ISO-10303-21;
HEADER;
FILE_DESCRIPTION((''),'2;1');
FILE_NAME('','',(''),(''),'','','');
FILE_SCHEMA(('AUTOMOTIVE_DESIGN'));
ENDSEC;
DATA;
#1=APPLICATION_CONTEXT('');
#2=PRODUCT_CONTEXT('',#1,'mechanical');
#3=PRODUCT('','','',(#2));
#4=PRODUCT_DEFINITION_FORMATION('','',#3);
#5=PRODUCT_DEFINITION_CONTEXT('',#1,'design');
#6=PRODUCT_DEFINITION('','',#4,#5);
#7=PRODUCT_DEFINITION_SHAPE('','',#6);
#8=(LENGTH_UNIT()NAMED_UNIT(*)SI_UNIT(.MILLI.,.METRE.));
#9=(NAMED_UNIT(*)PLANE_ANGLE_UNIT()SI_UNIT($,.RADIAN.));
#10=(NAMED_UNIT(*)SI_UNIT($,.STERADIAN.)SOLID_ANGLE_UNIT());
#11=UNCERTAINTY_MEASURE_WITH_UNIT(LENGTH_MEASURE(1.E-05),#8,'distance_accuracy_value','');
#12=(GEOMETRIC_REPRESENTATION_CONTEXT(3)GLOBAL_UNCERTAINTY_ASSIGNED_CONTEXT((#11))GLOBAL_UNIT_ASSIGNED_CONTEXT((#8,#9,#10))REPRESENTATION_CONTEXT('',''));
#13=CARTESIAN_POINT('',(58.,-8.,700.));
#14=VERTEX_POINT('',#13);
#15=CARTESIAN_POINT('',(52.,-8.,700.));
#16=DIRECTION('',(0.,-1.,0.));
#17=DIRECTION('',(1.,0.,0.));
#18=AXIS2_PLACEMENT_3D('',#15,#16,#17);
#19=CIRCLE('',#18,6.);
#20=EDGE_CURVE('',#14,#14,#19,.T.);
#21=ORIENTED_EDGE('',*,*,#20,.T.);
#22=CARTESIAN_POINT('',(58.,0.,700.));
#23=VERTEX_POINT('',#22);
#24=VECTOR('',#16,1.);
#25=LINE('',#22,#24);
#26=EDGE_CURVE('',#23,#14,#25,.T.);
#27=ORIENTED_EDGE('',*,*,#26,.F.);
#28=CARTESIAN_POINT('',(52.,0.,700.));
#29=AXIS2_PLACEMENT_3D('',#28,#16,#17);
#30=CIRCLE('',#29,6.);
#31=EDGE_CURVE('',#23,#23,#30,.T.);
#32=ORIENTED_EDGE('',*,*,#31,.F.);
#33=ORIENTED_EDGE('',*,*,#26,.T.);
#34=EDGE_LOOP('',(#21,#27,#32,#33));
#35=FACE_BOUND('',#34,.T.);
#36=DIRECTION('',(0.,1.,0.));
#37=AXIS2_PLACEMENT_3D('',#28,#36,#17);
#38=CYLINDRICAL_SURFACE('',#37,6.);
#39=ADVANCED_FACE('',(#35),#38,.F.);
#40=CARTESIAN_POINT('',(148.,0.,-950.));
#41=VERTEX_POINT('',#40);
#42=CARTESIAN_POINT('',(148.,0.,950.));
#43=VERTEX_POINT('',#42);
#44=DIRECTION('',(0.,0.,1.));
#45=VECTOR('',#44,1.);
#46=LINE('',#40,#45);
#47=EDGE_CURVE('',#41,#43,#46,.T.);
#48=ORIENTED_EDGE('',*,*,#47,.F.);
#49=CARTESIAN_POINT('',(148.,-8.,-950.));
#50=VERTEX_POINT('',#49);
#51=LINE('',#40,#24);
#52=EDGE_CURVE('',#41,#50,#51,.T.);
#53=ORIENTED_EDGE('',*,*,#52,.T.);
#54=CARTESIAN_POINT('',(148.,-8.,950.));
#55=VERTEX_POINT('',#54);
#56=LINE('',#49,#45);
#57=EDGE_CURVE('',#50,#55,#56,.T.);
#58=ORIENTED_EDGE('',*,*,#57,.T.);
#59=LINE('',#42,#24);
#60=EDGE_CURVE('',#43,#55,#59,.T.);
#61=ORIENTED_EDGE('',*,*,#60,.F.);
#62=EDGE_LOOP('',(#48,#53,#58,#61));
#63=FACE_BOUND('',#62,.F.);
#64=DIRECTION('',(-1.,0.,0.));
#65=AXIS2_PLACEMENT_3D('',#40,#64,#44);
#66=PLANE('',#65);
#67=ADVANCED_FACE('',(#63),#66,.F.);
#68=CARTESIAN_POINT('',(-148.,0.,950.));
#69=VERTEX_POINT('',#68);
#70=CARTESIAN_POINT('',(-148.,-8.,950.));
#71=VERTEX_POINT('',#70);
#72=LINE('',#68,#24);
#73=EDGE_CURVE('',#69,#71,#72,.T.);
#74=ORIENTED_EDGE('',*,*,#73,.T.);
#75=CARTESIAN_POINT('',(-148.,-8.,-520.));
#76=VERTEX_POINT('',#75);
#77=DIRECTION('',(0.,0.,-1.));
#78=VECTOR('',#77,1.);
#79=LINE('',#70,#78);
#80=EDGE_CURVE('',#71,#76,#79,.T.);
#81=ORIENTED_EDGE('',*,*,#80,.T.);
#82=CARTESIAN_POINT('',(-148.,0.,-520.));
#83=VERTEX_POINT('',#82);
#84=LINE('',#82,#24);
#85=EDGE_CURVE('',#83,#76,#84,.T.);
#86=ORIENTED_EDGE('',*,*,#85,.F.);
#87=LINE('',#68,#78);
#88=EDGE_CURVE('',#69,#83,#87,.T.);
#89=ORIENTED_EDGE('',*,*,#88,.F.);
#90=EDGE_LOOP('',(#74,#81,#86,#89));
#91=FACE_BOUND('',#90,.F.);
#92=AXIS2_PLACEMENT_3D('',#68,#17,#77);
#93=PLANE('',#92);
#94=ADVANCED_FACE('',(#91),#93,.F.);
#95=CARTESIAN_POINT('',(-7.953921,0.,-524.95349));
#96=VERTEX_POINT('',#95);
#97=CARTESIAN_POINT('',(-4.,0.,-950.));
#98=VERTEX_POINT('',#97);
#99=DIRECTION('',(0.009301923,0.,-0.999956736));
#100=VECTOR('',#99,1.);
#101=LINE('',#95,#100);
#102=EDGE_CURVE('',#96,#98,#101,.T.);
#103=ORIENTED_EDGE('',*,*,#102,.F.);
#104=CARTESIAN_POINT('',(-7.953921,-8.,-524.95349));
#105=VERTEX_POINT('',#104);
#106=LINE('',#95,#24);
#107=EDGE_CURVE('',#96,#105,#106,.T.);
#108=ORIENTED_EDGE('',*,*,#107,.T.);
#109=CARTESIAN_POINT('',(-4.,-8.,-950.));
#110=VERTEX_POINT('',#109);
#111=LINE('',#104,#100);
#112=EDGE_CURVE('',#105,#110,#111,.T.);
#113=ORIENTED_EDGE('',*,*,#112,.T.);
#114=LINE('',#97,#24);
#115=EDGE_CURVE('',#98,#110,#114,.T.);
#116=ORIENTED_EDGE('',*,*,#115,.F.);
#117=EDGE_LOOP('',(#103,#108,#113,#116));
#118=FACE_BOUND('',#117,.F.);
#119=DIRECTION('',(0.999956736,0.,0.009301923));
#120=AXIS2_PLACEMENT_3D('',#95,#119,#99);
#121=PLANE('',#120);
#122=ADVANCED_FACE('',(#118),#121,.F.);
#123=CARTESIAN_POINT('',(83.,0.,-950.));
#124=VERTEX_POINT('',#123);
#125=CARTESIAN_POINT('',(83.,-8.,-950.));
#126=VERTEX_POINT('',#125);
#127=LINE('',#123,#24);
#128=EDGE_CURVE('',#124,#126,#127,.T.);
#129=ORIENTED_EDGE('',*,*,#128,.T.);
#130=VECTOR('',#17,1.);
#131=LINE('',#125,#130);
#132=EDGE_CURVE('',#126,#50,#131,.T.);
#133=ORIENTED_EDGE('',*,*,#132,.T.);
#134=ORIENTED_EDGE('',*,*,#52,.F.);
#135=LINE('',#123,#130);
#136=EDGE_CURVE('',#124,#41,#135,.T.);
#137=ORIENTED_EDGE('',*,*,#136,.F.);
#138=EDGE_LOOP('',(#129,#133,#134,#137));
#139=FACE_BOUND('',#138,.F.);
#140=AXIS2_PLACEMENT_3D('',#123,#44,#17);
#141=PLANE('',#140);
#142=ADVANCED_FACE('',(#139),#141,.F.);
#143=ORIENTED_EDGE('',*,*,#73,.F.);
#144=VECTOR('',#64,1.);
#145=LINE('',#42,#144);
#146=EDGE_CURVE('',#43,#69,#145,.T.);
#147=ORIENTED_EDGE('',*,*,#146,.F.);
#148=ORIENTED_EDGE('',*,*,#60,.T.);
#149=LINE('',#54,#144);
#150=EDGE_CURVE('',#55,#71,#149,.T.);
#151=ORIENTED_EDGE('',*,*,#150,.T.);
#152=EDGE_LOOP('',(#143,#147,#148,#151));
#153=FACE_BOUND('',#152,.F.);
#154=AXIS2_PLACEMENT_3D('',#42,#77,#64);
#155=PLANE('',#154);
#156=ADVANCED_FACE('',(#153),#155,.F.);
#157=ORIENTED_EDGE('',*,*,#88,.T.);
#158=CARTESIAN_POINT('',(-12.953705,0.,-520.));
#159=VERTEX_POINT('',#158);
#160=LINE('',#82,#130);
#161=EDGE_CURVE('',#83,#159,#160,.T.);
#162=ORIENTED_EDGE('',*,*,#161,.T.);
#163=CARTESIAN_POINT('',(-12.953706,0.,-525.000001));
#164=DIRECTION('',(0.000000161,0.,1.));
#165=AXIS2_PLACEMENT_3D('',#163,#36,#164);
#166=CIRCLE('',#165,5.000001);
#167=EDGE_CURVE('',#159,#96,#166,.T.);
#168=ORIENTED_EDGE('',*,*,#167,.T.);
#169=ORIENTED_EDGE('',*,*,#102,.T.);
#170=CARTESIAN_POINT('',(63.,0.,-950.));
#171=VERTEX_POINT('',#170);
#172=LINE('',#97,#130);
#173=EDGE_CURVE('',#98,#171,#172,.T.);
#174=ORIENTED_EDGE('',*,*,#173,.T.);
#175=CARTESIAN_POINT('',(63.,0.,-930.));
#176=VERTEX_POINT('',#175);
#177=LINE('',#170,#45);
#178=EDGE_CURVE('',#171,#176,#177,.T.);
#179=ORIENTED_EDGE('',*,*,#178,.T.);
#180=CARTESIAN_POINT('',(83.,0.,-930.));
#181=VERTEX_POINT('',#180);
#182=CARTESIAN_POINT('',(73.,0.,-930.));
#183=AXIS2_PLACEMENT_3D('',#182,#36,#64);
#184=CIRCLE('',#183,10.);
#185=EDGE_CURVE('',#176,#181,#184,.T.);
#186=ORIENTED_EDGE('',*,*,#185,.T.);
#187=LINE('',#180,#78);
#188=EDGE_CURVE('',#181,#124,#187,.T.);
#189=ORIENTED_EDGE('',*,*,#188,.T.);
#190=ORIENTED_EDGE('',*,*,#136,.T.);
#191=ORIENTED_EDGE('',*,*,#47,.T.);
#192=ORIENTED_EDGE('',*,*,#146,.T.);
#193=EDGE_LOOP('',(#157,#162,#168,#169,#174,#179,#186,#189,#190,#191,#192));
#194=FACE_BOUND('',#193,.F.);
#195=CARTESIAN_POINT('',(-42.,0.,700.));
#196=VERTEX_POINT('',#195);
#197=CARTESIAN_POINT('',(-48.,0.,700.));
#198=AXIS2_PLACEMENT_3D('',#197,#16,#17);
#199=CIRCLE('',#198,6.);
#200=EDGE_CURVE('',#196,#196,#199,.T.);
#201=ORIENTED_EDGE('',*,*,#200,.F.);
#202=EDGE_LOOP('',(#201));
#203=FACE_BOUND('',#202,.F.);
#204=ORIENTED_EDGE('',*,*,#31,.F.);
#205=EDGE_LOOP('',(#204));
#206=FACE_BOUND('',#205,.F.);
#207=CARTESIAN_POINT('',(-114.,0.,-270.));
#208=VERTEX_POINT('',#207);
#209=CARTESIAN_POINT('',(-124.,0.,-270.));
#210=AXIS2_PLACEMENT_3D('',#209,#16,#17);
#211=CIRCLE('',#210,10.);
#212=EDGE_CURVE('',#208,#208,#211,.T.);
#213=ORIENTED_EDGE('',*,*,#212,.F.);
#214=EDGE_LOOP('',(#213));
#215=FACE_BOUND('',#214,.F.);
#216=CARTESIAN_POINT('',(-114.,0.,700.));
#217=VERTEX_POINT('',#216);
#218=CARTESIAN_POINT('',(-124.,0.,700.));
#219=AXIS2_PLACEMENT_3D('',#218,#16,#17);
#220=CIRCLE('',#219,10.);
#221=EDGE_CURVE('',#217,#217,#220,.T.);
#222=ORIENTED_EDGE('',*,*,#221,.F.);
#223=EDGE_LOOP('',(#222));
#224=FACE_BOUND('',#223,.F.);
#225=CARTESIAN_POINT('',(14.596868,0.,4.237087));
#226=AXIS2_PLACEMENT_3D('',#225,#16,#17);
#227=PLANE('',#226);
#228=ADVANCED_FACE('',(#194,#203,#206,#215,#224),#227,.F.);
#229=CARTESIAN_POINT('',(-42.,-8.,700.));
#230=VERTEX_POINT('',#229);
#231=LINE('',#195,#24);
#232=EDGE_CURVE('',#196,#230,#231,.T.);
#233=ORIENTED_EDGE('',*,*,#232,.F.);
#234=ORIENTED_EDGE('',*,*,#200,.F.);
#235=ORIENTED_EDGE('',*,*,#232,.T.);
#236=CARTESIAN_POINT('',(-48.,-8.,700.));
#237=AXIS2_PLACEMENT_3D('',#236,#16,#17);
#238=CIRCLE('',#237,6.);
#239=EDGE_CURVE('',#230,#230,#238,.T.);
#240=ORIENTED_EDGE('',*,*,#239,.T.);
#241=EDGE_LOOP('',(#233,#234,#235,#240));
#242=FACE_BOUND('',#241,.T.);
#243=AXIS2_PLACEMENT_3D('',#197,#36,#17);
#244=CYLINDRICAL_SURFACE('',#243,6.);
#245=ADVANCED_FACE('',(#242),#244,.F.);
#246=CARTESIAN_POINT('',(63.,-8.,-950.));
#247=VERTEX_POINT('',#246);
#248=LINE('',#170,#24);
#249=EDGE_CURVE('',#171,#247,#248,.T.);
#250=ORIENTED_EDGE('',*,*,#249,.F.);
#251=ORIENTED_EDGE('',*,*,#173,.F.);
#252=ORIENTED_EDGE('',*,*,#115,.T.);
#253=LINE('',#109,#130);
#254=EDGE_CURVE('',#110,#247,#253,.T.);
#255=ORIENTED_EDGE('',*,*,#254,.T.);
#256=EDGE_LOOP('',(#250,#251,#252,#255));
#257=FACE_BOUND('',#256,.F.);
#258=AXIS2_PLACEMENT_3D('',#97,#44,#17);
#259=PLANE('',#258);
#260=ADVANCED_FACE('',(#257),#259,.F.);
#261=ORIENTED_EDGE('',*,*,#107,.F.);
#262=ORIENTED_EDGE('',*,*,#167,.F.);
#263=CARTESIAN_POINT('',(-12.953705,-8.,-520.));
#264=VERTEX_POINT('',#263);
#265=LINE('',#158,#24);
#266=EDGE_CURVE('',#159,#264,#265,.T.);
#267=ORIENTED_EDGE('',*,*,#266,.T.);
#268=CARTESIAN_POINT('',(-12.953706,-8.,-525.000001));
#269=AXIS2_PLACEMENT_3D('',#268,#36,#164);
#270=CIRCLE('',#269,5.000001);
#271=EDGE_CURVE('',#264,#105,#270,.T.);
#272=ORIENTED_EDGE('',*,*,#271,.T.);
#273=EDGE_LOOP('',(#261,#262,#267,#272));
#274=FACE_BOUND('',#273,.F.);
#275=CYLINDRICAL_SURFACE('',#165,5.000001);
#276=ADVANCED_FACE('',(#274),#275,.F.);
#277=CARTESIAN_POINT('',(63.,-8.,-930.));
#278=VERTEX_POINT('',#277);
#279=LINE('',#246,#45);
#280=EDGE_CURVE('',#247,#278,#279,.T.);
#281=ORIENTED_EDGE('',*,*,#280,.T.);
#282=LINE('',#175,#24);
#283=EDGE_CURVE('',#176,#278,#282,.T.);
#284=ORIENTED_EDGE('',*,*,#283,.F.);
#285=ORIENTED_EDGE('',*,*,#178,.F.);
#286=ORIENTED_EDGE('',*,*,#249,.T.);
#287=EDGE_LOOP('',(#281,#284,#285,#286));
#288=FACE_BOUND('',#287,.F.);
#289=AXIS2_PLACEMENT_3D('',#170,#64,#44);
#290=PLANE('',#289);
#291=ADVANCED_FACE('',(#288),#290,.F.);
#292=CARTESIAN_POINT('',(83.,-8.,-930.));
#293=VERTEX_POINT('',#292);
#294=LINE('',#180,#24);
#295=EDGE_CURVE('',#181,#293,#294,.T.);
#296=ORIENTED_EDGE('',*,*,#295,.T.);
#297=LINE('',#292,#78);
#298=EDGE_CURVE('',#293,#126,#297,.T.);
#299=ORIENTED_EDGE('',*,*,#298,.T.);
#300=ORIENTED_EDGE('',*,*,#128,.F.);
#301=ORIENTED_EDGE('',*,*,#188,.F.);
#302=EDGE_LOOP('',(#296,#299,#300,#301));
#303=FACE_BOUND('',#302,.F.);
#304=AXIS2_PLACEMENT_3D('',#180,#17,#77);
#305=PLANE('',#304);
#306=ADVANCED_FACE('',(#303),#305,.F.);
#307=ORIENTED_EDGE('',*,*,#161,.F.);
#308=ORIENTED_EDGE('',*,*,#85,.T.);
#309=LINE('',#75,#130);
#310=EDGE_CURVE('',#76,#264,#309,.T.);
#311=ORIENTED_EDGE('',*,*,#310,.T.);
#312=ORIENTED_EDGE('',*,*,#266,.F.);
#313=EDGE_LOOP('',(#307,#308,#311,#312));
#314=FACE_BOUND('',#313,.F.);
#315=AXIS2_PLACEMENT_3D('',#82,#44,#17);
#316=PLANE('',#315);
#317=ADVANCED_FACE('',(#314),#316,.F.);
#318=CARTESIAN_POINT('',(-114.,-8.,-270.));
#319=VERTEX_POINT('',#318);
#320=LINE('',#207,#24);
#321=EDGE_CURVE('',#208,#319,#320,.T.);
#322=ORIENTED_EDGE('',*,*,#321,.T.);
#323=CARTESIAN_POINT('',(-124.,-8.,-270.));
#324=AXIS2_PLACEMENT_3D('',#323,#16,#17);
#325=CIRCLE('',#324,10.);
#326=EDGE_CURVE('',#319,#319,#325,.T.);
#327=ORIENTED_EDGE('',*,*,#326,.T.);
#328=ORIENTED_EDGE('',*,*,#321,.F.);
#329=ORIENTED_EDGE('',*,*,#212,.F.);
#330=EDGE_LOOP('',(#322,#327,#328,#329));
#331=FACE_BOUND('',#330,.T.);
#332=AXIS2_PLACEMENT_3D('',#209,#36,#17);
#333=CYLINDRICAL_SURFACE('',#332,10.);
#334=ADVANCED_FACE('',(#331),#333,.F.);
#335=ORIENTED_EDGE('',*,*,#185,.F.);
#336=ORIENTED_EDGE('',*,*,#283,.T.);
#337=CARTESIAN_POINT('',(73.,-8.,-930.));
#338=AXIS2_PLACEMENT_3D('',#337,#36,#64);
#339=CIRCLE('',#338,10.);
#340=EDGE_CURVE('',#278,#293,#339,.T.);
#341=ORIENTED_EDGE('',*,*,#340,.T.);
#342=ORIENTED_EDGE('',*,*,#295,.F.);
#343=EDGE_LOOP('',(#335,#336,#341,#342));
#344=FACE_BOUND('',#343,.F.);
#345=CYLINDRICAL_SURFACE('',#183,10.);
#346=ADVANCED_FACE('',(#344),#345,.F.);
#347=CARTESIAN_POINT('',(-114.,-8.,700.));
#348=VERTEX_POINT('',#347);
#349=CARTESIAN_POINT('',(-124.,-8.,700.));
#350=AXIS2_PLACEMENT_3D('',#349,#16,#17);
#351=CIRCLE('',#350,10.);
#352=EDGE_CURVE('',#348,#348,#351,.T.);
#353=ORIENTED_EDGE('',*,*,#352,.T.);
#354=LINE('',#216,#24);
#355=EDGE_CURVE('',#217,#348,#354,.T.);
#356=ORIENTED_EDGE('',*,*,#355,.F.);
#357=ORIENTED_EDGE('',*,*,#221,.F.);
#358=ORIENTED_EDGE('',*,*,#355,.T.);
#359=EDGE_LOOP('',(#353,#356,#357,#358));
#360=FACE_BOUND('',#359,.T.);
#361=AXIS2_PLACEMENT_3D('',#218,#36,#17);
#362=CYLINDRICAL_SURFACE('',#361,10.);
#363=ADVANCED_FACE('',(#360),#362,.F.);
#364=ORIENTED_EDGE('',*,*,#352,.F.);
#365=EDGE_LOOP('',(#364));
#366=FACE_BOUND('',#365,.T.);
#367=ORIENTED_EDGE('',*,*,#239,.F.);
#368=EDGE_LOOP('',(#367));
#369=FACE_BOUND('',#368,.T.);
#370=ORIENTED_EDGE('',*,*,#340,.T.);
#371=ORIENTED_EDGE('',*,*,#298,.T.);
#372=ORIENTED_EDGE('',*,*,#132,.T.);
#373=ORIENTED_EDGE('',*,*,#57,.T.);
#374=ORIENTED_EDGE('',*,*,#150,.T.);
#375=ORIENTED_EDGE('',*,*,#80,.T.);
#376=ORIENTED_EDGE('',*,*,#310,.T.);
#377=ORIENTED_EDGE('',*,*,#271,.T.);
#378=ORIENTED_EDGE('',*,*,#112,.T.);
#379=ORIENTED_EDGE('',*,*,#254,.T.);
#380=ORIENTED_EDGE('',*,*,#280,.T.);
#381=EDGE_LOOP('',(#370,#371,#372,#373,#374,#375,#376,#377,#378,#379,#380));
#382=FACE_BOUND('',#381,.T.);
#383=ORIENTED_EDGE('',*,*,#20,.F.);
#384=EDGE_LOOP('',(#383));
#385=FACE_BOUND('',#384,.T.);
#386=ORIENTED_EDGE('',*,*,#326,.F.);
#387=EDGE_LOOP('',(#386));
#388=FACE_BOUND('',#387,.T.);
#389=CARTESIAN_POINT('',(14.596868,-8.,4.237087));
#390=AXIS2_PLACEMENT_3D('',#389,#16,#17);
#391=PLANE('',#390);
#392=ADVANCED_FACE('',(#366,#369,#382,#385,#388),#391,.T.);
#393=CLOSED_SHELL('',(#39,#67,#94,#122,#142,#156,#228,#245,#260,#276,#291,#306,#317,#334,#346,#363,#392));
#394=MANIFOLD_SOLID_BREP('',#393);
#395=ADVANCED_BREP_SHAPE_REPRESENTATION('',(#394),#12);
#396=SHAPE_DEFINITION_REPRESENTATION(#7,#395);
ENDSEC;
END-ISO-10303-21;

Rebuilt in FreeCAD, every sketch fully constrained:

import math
import FreeCAD as App
import Part
import Sketcher
from FreeCAD import Vector
Q = App.Units.Quantity

doc = App.newDocument("Part")
params = doc.addObject("Spreadsheet::Sheet", "Params")
for row, (alias, value) in enumerate([
    ("sketch1_diameter", "20 mm"),
    ("sketch1_diameter2", "20 mm"),
    ("sketch1_diameter3", "12 mm"),
    ("sketch1_diameter4", "12 mm"),
    ("sketch1_radius", "5.000001 mm"),
    ("pad1_length", "8 mm"),
], start=1):
    params.set(f"A{row}", alias)
    params.set(f"B{row}", "=" + value)
    params.setAlias(f"B{row}", alias)

body = doc.addObject("PartDesign::Body", "Body")

sketch1 = body.newObject("Sketcher::SketchObject", "Sketch")
sketch1.AttachmentSupport = (doc.getObject("XZ_Plane"), [""])
sketch1.MapMode = "FlatFace"
sketch1.addGeometry(Part.LineSegment(Vector(148, 950, 0), Vector(-148, 950, 0)), False)
sketch1.addGeometry(Part.LineSegment(Vector(-148, 950, 0), Vector(-148, -520, 0)), False)
sketch1.addGeometry(Part.LineSegment(Vector(-148, -520, 0), Vector(-12.953705, -520, 0)), False)
sketch1.addGeometry(Part.ArcOfCircle(Part.Circle(Vector(-12.953706, -525.000001, 0), Vector(0, 0, 1), 5.000001), math.radians(0.532986), math.radians(89.999991)), False)
sketch1.addGeometry(Part.LineSegment(Vector(-7.953921, -524.95349, 0), Vector(-4, -950, 0)), False)
sketch1.addGeometry(Part.LineSegment(Vector(-4, -950, 0), Vector(63, -950, 0)), False)
sketch1.addGeometry(Part.LineSegment(Vector(63, -950, 0), Vector(63, -930, 0)), False)
sketch1.addGeometry(Part.ArcOfCircle(Part.Circle(Vector(73, -930, 0), Vector(0, 0, 1), 10), math.radians(0), math.radians(180)), False)
sketch1.addGeometry(Part.LineSegment(Vector(83, -930, 0), Vector(83, -950, 0)), False)
sketch1.addGeometry(Part.LineSegment(Vector(83, -950, 0), Vector(148, -950, 0)), False)
sketch1.addGeometry(Part.LineSegment(Vector(148, -950, 0), Vector(148, 950, 0)), False)
sketch1.addGeometry(Part.Circle(Vector(-124, -270, 0), Vector(0, 0, 1), 10), False)
sketch1.addGeometry(Part.Circle(Vector(-124, 700, 0), Vector(0, 0, 1), 10), False)
sketch1.addGeometry(Part.Circle(Vector(-48, 700, 0), Vector(0, 0, 1), 6), False)
sketch1.addGeometry(Part.Circle(Vector(52, 700, 0), Vector(0, 0, 1), 6), False)
sketch1.addConstraint(Sketcher.Constraint("Coincident", 0, 2, 1, 1))
sketch1.addConstraint(Sketcher.Constraint("Coincident", 1, 2, 2, 1))
sketch1.addConstraint(Sketcher.Constraint("Coincident", 2, 2, 3, 2))
sketch1.addConstraint(Sketcher.Constraint("Coincident", 3, 1, 4, 1))
sketch1.addConstraint(Sketcher.Constraint("Coincident", 4, 2, 5, 1))
sketch1.addConstraint(Sketcher.Constraint("Coincident", 5, 2, 6, 1))
sketch1.addConstraint(Sketcher.Constraint("Coincident", 6, 2, 7, 2))
sketch1.addConstraint(Sketcher.Constraint("Coincident", 7, 1, 8, 1))
sketch1.addConstraint(Sketcher.Constraint("Coincident", 8, 2, 9, 1))
sketch1.addConstraint(Sketcher.Constraint("Coincident", 9, 2, 10, 1))
sketch1.addConstraint(Sketcher.Constraint("Coincident", 10, 2, 0, 1))
sketch1.addConstraint(Sketcher.Constraint("Horizontal", 0))
sketch1.addConstraint(Sketcher.Constraint("Vertical", 1))
sketch1.addConstraint(Sketcher.Constraint("Horizontal", 2))
sketch1.addConstraint(Sketcher.Constraint("Horizontal", 5))
sketch1.addConstraint(Sketcher.Constraint("Vertical", 6))
sketch1.addConstraint(Sketcher.Constraint("Vertical", 8))
sketch1.addConstraint(Sketcher.Constraint("Horizontal", 9))
sketch1.addConstraint(Sketcher.Constraint("Vertical", 10))
sketch1.addConstraint(Sketcher.Constraint("Diameter", 11, Q("20 mm")))
sketch1.addConstraint(Sketcher.Constraint("Diameter", 12, Q("20 mm")))
sketch1.addConstraint(Sketcher.Constraint("Diameter", 13, Q("12 mm")))
sketch1.addConstraint(Sketcher.Constraint("Diameter", 14, Q("12 mm")))
sketch1.addConstraint(Sketcher.Constraint("Radius", 3, Q("5.000001 mm")))
sketch1.addConstraint(Sketcher.Constraint("Radius", 7, Q("10 mm")))
sketch1.addConstraint(Sketcher.Constraint("DistanceX", 0, 2, 0, 1, Q("296 mm")))
sketch1.addConstraint(Sketcher.Constraint("DistanceX", 5, 1, 5, 2, Q("67 mm")))
sketch1.addConstraint(Sketcher.Constraint("DistanceX", 9, 1, 9, 2, Q("65 mm")))
sketch1.addConstraint(Sketcher.Constraint("DistanceY", 1, 2, 1, 1, Q("1470 mm")))
sketch1.addConstraint(Sketcher.Constraint("DistanceY", 6, 1, 6, 2, Q("20 mm")))
sketch1.addConstraint(Sketcher.Constraint("DistanceY", 8, 2, 8, 1, Q("20 mm")))
sketch1.addConstraint(Sketcher.Constraint("DistanceY", 10, 1, 10, 2, Q("1900 mm")))
sketch1.addConstraint(Sketcher.Constraint("DistanceY", 3, 3, -1, 1, Q("525.000001 mm")))
sketch1.addConstraint(Sketcher.Constraint("DistanceX", -1, 1, 7, 3, Q("73 mm")))
sketch1.addConstraint(Sketcher.Constraint("DistanceY", 7, 3, -1, 1, Q("930 mm")))
sketch1.addConstraint(Sketcher.Constraint("DistanceX", 11, 3, -1, 1, Q("124 mm")))
sketch1.addConstraint(Sketcher.Constraint("DistanceY", 11, 3, -1, 1, Q("270 mm")))
sketch1.addConstraint(Sketcher.Constraint("DistanceX", 12, 3, -1, 1, Q("124 mm")))
sketch1.addConstraint(Sketcher.Constraint("DistanceY", -1, 1, 12, 3, Q("700 mm")))
sketch1.addConstraint(Sketcher.Constraint("DistanceX", 13, 3, -1, 1, Q("48 mm")))
sketch1.addConstraint(Sketcher.Constraint("DistanceY", -1, 1, 13, 3, Q("700 mm")))
sketch1.addConstraint(Sketcher.Constraint("DistanceX", -1, 1, 14, 3, Q("52 mm")))
sketch1.addConstraint(Sketcher.Constraint("DistanceY", -1, 1, 14, 3, Q("700 mm")))
sketch1.addConstraint(Sketcher.Constraint("DistanceY", 4, 2, -1, 1, Q("950 mm")))
sketch1.addConstraint(Sketcher.Constraint("Distance", 4, Q("425.0649 mm")))
sketch1.addConstraint(Sketcher.Constraint("DistanceX", 2, 1, 2, 2, Q("135.046295 mm")))
sketch1.addConstraint(Sketcher.Constraint("DistanceX", 3, 1, -1, 1, Q("7.953921 mm")))
sketch1.setExpression("Constraints[19]", "Params.sketch1_diameter")
sketch1.setExpression("Constraints[20]", "Params.sketch1_diameter2")
sketch1.setExpression("Constraints[21]", "Params.sketch1_diameter3")
sketch1.setExpression("Constraints[22]", "Params.sketch1_diameter4")
sketch1.setExpression("Constraints[23]", "Params.sketch1_radius")
pad1 = body.newObject("PartDesign::Pad", "Pad")
pad1.Profile = sketch1
pad1.setExpression("Length", "Params.pad1_length")

doc.recompute()
